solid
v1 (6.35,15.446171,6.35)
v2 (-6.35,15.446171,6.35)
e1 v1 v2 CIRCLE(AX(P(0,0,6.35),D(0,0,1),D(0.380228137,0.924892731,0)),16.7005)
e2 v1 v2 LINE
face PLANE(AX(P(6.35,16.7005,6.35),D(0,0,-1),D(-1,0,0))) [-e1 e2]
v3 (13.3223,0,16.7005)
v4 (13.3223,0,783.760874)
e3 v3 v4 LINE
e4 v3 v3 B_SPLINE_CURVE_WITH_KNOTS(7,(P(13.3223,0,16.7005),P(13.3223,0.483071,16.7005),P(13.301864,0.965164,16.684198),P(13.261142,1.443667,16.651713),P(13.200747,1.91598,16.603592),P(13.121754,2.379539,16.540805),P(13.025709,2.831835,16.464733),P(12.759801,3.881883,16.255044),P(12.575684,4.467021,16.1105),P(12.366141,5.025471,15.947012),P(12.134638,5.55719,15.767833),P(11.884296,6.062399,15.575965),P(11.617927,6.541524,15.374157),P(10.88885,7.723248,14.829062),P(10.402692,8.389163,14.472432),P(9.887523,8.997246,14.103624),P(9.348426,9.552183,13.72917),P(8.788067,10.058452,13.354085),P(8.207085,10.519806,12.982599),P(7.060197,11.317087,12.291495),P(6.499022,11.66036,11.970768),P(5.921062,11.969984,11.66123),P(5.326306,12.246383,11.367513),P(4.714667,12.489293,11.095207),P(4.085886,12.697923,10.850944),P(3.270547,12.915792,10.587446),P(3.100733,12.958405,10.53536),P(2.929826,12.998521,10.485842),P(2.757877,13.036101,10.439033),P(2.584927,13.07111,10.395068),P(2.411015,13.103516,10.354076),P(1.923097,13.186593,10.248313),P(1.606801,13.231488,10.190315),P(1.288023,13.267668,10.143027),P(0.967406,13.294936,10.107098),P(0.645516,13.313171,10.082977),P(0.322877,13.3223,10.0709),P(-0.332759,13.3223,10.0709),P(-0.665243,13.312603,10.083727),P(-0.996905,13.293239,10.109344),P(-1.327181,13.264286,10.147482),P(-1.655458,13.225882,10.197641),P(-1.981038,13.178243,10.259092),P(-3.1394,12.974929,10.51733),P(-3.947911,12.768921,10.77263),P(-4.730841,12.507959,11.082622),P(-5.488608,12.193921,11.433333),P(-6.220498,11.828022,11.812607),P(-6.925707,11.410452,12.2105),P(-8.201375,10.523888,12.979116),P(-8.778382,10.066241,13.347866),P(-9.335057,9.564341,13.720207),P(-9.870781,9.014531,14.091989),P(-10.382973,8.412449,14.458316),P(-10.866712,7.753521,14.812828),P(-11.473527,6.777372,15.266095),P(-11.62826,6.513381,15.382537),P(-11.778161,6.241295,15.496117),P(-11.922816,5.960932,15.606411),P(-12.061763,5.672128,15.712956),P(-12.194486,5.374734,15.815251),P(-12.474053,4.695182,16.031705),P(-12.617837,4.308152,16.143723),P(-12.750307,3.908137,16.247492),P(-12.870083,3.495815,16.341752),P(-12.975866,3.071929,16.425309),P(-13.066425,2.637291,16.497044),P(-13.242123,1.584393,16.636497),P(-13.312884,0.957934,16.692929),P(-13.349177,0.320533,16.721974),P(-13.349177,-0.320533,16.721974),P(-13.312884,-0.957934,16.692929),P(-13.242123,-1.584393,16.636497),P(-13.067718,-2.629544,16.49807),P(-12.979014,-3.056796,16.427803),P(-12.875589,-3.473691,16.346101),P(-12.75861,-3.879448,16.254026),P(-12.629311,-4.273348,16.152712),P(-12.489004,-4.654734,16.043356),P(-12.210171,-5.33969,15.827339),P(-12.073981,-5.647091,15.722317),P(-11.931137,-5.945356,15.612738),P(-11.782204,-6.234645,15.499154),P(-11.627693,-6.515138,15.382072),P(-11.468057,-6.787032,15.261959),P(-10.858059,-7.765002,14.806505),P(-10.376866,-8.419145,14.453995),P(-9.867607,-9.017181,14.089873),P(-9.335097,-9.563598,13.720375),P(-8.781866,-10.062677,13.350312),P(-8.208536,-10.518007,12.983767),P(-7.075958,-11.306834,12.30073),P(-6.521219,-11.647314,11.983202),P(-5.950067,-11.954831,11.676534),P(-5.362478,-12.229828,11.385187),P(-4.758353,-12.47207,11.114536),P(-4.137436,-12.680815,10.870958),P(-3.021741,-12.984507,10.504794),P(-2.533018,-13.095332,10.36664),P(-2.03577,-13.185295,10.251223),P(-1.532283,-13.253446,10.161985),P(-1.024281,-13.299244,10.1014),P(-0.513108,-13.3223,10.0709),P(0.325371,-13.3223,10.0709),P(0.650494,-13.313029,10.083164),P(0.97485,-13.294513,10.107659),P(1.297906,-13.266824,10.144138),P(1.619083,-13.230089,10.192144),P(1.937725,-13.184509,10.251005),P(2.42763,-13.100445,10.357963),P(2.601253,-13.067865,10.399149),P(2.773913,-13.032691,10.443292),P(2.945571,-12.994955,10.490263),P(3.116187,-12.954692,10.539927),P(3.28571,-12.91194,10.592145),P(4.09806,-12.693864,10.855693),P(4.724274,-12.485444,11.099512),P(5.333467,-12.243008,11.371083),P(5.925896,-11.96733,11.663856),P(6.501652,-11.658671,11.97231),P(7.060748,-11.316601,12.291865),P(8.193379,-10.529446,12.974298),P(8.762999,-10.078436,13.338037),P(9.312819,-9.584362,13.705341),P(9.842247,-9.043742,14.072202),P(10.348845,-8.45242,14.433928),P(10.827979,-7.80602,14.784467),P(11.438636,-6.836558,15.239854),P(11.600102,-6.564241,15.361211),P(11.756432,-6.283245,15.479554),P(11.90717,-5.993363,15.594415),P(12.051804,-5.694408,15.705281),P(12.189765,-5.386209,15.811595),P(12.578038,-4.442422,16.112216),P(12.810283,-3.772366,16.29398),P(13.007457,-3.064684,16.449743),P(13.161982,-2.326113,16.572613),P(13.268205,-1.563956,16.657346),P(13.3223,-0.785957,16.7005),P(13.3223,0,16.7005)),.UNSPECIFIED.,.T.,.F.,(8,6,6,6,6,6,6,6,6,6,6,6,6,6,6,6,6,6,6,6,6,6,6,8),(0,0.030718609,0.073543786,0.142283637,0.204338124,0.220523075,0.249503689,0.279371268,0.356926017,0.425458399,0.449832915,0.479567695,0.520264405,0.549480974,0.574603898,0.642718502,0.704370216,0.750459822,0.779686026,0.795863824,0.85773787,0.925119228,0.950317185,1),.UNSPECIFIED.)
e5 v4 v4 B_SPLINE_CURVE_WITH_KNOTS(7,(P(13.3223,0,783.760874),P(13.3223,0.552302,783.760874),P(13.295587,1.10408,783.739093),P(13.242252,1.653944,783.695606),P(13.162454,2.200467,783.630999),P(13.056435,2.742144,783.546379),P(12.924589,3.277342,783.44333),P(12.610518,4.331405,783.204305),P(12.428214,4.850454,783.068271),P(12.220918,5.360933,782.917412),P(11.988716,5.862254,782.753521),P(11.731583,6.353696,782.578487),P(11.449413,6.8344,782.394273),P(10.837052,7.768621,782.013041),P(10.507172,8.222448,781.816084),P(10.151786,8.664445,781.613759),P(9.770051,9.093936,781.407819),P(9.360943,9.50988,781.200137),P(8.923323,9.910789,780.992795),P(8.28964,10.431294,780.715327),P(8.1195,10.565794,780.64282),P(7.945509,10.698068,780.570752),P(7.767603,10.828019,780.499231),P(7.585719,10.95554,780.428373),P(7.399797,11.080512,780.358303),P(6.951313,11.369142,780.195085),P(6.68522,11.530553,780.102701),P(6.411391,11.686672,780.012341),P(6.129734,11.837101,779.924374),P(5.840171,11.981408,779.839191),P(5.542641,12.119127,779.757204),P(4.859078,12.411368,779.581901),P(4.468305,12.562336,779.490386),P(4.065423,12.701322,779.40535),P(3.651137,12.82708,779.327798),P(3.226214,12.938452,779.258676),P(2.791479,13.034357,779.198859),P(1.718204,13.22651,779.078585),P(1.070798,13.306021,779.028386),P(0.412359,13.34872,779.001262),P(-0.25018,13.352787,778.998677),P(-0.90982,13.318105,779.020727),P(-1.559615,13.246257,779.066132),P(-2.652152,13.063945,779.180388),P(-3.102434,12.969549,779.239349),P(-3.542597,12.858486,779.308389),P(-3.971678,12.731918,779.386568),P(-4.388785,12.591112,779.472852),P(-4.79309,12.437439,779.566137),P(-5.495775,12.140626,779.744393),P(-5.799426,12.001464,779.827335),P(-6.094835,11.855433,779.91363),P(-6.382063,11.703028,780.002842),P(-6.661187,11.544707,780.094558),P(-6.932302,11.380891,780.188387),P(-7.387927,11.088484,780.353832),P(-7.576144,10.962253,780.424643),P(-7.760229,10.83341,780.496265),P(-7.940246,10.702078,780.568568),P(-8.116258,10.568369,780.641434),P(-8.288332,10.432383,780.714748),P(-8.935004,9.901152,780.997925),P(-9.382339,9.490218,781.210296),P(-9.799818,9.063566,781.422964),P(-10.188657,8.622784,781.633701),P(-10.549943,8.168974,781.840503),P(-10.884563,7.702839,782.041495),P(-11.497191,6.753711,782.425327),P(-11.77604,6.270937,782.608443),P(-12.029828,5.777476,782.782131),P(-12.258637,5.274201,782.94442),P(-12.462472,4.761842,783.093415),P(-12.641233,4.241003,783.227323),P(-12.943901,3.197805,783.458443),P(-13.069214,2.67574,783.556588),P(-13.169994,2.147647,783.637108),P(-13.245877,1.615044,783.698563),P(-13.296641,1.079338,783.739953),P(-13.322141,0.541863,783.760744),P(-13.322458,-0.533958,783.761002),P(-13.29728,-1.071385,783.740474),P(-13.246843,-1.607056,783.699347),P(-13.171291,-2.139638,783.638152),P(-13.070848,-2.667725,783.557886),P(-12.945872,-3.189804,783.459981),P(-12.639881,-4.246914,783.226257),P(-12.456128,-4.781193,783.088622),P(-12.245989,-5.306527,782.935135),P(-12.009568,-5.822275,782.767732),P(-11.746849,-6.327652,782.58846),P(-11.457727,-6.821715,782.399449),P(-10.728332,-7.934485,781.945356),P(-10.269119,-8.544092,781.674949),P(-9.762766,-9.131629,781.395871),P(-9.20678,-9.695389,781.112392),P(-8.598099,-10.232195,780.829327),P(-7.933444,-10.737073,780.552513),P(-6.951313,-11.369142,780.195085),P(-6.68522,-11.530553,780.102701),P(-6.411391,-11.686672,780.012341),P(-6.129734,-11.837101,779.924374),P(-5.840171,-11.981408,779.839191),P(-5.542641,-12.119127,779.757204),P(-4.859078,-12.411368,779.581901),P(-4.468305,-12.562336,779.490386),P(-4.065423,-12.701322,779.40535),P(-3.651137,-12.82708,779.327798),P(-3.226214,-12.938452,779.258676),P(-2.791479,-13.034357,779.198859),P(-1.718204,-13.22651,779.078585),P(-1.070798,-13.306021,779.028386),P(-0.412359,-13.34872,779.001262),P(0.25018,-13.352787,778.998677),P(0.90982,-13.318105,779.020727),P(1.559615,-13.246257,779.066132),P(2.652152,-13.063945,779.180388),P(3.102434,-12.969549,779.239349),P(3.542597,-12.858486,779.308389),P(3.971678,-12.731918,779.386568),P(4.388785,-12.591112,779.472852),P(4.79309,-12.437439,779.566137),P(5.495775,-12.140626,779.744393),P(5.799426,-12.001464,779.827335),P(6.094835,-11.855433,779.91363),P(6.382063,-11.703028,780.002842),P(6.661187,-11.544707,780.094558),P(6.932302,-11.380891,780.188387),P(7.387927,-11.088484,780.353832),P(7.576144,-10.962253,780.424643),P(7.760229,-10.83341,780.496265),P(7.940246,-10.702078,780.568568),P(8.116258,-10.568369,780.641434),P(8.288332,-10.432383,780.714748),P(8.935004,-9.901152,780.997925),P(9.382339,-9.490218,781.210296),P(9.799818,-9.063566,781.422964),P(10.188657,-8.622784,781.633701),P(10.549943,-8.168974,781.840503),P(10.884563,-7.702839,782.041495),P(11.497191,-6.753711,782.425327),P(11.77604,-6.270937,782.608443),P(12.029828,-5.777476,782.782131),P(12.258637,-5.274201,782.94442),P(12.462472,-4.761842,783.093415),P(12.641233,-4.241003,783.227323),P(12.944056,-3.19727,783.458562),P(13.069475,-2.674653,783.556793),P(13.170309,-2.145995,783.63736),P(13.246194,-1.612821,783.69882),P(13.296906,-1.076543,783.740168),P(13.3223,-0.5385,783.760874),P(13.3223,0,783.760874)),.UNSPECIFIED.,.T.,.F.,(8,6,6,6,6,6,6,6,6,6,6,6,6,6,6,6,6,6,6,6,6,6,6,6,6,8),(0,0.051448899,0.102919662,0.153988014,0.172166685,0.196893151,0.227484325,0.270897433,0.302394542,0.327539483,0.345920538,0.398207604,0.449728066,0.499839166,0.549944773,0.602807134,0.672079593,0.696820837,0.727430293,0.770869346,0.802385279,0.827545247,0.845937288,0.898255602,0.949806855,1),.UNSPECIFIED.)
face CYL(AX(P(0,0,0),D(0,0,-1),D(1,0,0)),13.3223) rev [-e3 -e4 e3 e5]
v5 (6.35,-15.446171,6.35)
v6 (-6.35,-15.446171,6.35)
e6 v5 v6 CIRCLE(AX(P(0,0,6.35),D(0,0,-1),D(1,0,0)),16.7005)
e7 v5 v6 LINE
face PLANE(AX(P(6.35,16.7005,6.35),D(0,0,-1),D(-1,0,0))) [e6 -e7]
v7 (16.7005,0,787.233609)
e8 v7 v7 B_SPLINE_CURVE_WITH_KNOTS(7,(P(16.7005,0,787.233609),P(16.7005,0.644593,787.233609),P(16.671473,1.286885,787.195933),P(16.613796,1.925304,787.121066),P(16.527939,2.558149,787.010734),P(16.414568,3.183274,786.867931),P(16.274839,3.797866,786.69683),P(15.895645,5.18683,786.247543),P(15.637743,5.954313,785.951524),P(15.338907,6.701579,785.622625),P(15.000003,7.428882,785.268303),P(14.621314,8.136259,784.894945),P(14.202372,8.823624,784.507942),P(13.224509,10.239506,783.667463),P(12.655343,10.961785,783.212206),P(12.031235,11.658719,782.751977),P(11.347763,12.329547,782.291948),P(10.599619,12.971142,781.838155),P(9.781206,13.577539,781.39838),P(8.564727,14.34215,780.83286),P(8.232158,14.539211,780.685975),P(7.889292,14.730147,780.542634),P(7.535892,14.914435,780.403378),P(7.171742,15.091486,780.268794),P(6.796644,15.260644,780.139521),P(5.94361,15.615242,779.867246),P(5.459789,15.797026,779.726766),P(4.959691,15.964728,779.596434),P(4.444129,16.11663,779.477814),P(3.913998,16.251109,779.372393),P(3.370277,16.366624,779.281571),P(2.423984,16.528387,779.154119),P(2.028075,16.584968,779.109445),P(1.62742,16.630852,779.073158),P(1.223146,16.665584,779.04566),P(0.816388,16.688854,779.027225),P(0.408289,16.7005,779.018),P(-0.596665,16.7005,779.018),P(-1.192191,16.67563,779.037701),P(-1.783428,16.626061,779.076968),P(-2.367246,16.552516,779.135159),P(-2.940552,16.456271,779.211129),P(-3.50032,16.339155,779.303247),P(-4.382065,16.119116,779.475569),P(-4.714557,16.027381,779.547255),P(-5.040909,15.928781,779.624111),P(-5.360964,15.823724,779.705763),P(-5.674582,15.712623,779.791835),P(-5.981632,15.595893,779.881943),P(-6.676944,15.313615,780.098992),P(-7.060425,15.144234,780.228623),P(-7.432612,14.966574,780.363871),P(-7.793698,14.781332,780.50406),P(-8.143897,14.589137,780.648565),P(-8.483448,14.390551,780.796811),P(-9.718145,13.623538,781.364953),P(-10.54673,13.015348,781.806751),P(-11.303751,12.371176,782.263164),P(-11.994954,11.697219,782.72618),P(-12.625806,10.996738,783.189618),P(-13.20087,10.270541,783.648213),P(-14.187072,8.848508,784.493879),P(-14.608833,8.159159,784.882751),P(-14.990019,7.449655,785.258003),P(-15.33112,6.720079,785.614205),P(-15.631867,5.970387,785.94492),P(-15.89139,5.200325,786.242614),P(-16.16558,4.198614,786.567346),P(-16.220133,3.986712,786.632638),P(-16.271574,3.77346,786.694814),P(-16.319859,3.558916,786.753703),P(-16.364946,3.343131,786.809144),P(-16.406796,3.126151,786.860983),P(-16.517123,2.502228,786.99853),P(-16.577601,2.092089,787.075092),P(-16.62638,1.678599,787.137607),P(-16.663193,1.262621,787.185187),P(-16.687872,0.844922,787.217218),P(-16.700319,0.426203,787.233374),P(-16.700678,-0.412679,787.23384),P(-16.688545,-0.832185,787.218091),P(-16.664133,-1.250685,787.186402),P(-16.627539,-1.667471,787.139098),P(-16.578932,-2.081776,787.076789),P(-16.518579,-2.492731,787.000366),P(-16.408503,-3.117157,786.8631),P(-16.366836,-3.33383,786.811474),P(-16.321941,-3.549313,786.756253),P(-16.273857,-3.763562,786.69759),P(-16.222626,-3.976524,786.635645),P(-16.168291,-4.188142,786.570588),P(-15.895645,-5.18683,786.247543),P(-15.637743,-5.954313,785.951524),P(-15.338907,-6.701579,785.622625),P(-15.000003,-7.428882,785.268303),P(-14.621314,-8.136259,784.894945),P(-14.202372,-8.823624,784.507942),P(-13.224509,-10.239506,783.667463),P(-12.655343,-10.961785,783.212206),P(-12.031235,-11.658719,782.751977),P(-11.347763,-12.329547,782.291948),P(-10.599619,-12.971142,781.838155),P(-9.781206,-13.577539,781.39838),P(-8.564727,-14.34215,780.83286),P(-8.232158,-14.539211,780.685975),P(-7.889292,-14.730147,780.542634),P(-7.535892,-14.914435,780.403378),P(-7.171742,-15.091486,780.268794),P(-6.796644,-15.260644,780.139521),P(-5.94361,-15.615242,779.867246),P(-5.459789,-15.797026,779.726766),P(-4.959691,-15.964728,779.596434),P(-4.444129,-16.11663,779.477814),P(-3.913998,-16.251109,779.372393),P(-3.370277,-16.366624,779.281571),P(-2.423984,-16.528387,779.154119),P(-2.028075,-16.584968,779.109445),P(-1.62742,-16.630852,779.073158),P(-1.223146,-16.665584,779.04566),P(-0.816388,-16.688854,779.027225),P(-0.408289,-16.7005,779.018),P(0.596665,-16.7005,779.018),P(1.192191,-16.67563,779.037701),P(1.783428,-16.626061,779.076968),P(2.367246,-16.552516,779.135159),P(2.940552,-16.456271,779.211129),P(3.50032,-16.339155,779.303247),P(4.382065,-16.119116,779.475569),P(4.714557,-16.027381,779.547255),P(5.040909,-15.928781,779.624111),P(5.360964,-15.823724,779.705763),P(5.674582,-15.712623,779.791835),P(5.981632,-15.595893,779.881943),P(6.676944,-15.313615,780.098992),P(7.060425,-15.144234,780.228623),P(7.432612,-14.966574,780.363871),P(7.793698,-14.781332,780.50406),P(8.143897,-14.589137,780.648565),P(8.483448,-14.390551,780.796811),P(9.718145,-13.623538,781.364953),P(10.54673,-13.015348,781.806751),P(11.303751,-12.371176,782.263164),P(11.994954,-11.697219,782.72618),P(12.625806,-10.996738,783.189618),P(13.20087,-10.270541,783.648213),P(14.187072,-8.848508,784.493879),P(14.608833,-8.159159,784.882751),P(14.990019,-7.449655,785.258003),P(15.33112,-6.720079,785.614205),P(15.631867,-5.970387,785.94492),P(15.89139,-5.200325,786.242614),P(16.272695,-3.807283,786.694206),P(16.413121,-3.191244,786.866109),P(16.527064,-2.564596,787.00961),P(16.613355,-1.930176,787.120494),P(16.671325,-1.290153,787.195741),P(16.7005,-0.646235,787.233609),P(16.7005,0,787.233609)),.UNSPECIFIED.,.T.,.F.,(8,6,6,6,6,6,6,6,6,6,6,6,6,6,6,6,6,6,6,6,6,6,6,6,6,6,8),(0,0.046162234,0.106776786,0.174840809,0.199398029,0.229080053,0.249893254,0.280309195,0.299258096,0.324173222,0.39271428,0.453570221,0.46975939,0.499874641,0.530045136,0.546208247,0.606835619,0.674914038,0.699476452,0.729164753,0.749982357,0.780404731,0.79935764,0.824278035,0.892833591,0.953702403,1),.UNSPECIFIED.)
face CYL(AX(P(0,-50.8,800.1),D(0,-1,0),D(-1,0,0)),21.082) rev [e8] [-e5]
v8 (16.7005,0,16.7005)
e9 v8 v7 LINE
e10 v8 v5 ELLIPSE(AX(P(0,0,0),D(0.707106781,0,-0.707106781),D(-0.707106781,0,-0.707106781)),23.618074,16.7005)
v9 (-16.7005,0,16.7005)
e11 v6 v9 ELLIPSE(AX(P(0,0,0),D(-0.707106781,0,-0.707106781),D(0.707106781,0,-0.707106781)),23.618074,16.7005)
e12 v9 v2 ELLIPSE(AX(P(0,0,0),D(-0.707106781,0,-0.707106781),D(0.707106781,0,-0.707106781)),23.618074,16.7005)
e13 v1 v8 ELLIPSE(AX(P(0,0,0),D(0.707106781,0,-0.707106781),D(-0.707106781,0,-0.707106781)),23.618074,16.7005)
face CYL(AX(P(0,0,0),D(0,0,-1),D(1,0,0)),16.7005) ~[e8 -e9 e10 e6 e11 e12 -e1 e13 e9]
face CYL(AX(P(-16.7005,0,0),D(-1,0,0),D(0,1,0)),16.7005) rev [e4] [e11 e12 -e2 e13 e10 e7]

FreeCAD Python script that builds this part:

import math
import FreeCAD as App
import Part
import Sketcher
Q = App.Units.Quantity

doc = App.newDocument("Part")
body = doc.addObject("PartDesign::Body", "Body")

sketch1 = body.newObject("Sketcher::SketchObject", "Sketch")
sketch1.AttachmentSupport = (doc.getObject("XY_Plane"), [""])
sketch1.MapMode = "FlatFace"
sketch1.addGeometry([
    Part.Circle(App.Vector(0, 0, 0), App.Vector(0, 0, 1), 17),
    Part.Circle(App.Vector(0, 0, 0), App.Vector(0, 0, 1), 13),
], False)
sketch1.addConstraint([
    Sketcher.Constraint("Coincident", 0, 3, -1, 1),
    Sketcher.Constraint("Coincident", 1, 3, -1, 1),
    Sketcher.Constraint("Diameter", 0, Q("1.315 in")),
    Sketcher.Constraint("Diameter", 1, Q("1.049 in")),
])
pad1 = body.newObject("PartDesign::Pad", "Pad")
pad1.Profile = sketch1
pad1.Length = Q("31.5 in")

sketch2 = body.newObject("Sketcher::SketchObject", "Sketch001")
sketch2.AttachmentSupport = (doc.getObject("XZ_Plane"), [""])
sketch2.MapMode = "FlatFace"
sketch2.AttachmentOffset = App.Placement(App.Vector(0, 0, 2 * 25.4), App.Rotation())
sketch2.addGeometry(Part.Circle(App.Vector(0, 800, 0), App.Vector(0, 0, 1), 21), False)
sketch2.addConstraint([
    Sketcher.Constraint("PointOnObject", 0, 3, -2),
    Sketcher.Constraint("Diameter", 0, Q("1.66 in")),
    Sketcher.Constraint("DistanceY", -1, 1, 0, 3, Q("31.5 in")),
])
pocket1 = body.newObject("PartDesign::Pocket", "Pocket")
pocket1.Profile = sketch2
pocket1.Length = Q("4 in")

sketch3 = body.newObject("Sketcher::SketchObject", "Sketch002")
sketch3.AttachmentSupport = (doc.getObject("YZ_Plane"), [""])
sketch3.MapMode = "FlatFace"
sketch3.AttachmentOffset = App.Placement(App.Vector(0, 0, -0.6575 * 25.4), App.Rotation())
sketch3.addGeometry([
    Part.ArcOfCircle(Part.Circle(App.Vector(0, 0, 0), App.Vector(0, 0, 1), 17), math.radians(0), math.radians(180)),
    Part.LineSegment(App.Vector(-17, 0, 0), App.Vector(17, 0, 0)),
], False)
sketch3.addConstraint([
    Sketcher.Constraint("Coincident", 0, 1, 1, 2),
    Sketcher.Constraint("Coincident", 1, 1, 0, 2),
    Sketcher.Constraint("Horizontal", 1),
    Sketcher.Constraint("Coincident", 0, 3, -1, 1),
    Sketcher.Constraint("PointOnObject", 0, 1, -1),
    Sketcher.Constraint("Radius", 0, Q("0.6575 in")),
])
pocket2 = body.newObject("PartDesign::Pocket", "Pocket001")
pocket2.Profile = sketch3
pocket2.Length = Q("1.5 in")
pocket2.Reversed = True

sketch4 = body.newObject("Sketcher::SketchObject", "Sketch003")
sketch4.AttachmentSupport = (doc.getObject("XZ_Plane"), [""])
sketch4.MapMode = "FlatFace"
sketch4.AttachmentOffset = App.Placement(App.Vector(0, 0, -0.6575 * 25.4), App.Rotation())
sketch4.addGeometry([
    Part.LineSegment(App.Vector(6, 6, 0), App.Vector(0, 0, 0)),
    Part.LineSegment(App.Vector(0, 0, 0), App.Vector(-6, 6, 0)),
    Part.LineSegment(App.Vector(-6, 6, 0), App.Vector(6, 6, 0)),
], False)
sketch4.addConstraint([
    Sketcher.Constraint("Coincident", 0, 2, 1, 1),
    Sketcher.Constraint("Coincident", 1, 2, 2, 1),
    Sketcher.Constraint("Coincident", 2, 2, 0, 1),
    Sketcher.Constraint("Horizontal", 2),
    Sketcher.Constraint("Coincident", 0, 2, -1, 1),
    Sketcher.Constraint("Perpendicular", 0, 1),
    Sketcher.Constraint("Equal", 0, 1),
    Sketcher.Constraint("DistanceX", 1, 2, -1, 1, Q("0.25 in")),
])
pocket3 = body.newObject("PartDesign::Pocket", "Pocket002")
pocket3.Profile = sketch4
pocket3.Type = "ThroughAll"
pocket3.Reversed = True

doc.recompute()
